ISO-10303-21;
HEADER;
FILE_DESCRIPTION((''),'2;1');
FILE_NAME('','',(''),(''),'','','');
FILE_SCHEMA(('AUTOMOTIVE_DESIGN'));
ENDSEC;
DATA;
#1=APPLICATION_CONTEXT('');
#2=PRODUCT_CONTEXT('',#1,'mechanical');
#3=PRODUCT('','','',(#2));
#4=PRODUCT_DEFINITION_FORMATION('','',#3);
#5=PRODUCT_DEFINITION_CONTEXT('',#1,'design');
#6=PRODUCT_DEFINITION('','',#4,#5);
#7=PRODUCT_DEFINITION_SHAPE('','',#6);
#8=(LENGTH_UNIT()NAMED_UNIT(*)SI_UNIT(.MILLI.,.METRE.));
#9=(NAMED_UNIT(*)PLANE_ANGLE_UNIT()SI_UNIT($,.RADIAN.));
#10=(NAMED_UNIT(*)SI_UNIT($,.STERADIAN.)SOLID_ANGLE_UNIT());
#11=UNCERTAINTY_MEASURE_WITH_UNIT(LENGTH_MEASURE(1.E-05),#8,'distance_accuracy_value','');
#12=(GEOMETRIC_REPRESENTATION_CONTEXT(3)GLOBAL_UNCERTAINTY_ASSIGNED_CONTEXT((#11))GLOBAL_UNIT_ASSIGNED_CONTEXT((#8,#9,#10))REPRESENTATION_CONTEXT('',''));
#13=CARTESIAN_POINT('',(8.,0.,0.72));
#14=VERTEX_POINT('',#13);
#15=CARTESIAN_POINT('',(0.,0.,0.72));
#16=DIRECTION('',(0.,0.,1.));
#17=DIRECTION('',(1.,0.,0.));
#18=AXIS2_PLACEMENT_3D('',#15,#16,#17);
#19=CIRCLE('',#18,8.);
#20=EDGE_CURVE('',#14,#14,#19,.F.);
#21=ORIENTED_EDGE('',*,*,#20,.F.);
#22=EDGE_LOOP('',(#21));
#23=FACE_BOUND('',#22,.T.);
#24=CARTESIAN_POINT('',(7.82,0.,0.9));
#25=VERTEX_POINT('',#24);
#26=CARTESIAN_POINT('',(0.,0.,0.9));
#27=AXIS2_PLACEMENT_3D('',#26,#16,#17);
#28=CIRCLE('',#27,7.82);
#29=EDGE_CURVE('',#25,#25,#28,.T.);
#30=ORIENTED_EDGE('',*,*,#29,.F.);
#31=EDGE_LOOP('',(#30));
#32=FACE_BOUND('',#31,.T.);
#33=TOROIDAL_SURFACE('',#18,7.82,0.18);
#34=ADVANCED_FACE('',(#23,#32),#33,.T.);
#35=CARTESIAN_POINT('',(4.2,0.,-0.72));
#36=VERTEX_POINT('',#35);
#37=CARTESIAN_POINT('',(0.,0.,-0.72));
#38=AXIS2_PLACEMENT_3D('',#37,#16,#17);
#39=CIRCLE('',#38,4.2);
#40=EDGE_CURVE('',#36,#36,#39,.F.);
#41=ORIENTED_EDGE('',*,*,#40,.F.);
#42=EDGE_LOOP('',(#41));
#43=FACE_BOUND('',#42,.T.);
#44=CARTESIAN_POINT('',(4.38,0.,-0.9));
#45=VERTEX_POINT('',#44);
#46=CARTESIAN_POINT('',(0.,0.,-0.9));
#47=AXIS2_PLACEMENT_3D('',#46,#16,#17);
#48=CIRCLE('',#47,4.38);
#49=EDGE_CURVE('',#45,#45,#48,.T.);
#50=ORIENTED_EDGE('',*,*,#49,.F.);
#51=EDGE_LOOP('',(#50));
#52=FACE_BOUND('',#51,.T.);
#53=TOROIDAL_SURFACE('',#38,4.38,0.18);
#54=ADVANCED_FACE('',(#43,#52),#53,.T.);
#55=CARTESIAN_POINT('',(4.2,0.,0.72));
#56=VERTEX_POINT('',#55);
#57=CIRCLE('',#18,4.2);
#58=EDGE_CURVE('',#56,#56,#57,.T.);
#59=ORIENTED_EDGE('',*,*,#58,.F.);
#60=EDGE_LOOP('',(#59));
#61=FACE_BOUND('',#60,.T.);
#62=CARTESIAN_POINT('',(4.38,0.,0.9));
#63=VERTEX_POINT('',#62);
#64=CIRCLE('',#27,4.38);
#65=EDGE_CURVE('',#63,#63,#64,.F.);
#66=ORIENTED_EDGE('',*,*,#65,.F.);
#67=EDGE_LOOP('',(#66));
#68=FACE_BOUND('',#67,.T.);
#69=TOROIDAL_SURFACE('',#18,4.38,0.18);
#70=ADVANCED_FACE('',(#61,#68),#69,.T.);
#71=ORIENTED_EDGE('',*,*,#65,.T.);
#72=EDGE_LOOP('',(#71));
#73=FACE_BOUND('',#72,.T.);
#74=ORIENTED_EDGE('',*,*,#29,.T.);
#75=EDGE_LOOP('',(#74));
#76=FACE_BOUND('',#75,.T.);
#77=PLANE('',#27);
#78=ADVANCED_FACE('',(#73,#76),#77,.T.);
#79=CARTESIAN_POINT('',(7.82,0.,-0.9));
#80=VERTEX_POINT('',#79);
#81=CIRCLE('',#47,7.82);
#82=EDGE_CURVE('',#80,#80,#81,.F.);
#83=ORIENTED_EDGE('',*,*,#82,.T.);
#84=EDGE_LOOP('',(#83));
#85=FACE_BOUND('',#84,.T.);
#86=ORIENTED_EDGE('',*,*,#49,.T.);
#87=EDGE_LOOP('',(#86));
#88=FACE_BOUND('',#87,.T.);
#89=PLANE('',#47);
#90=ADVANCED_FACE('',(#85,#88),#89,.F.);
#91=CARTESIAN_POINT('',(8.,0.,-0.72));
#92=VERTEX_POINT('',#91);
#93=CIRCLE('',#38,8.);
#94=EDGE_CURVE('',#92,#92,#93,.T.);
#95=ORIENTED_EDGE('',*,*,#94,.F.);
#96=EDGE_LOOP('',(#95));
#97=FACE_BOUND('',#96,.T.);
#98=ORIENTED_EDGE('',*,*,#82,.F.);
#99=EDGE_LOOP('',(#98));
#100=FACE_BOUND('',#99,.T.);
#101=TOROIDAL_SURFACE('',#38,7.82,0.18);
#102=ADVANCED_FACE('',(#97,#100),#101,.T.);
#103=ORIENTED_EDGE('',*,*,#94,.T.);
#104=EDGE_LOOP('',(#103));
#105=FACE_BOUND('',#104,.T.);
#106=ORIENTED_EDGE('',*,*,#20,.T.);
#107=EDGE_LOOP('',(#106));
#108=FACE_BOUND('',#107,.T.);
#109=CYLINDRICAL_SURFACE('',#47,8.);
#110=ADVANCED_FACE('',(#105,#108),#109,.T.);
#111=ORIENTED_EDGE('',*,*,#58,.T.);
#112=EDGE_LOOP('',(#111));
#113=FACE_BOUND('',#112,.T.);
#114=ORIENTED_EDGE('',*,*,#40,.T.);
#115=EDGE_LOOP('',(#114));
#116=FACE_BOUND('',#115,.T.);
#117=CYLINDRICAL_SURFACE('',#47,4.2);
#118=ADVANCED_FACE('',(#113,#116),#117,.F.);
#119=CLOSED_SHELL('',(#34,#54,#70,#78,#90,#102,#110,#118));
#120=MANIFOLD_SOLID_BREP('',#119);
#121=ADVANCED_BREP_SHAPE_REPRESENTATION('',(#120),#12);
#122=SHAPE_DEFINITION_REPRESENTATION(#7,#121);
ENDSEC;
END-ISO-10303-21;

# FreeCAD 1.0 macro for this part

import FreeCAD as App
import Part
import Sketcher

V = App.Vector


def edges_at(feature, points):
    """Names of the edges that pass closest to the given points."""
    edges = feature.Shape.Edges
    near = lambda p: min(range(len(edges)), key=lambda i: edges[i].distToShape(Part.Vertex(*p))[0])
    return sorted({f"Edge{near(p) + 1}" for p in points})

doc = App.newDocument("Part")
body = doc.addObject("PartDesign::Body", "Body")

# Sketch on XY plane
sketch1 = doc.addObject("Sketcher::SketchObject", "Sketch")
body.addObject(sketch1)
sketch1.AttachmentSupport = (doc.XY_Plane, [""])
sketch1.MapMode = "FlatFace"
sketch1.addGeometry([
    Part.Circle(V(0, 0, 0), V(0, 0, 1), 8),
    Part.Circle(V(0, 0, 0), V(0, 0, 1), 4.2),
], False)
sketch1.addConstraint([
    Sketcher.Constraint("Coincident", 0, 3, -1, 1),
    Sketcher.Constraint("Coincident", 1, 3, -1, 1),
    Sketcher.Constraint("Diameter", 0, 16.0),
    Sketcher.Constraint("Diameter", 1, 8.4),
])
pad1 = doc.addObject("PartDesign::Pad", "Pad")
body.addObject(pad1)
pad1.Profile = sketch1
pad1.Type = "TwoLengths"
pad1.Length = 0.9
pad1.Length2 = 0.9
doc.recompute()

fillet = doc.addObject("PartDesign::Fillet", "Fillet")
body.addObject(fillet)
fillet.Base = (pad1, edges_at(pad1, [
    (-8, 0, -0.9),
    (-4.2, 0, -0.9),
    (-8, 0, 0.9),
    (-4.2, 0, 0.9),
]))
fillet.Radius = 0.18

doc.recompute()
